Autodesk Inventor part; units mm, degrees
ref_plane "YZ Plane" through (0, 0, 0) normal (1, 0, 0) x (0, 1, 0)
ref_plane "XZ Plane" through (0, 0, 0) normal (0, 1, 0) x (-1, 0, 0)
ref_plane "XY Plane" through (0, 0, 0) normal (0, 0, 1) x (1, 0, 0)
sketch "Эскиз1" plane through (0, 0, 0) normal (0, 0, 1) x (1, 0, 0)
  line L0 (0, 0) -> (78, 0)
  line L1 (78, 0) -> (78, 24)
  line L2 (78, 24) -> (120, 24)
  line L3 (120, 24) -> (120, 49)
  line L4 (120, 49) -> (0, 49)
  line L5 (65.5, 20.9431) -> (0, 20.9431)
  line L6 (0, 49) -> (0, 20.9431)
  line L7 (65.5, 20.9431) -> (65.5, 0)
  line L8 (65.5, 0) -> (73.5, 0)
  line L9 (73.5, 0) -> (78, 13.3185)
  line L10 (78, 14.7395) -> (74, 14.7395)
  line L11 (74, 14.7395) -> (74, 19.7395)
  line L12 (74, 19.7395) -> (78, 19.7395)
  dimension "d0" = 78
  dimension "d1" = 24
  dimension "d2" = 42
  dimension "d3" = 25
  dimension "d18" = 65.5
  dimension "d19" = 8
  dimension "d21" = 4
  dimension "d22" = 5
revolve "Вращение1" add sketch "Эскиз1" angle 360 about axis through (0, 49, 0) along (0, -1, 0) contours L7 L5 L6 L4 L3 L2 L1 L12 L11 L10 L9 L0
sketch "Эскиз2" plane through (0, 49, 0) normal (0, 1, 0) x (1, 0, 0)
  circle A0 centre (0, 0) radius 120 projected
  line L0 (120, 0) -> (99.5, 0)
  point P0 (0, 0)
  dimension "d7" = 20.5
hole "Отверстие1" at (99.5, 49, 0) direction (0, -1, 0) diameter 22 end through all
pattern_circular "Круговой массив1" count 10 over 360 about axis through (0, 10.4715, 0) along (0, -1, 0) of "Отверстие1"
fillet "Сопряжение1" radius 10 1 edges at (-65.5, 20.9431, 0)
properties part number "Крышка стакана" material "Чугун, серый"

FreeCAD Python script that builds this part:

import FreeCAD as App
import Part
import Sketcher

V = App.Vector
Q = App.Units.Quantity


def edges_at(feature, points):
    """Names of the edges that pass closest to the given points."""
    edges = feature.Shape.Edges
    near = lambda p: min(range(len(edges)), key=lambda i: edges[i].distToShape(Part.Vertex(*p))[0])
    return sorted({f"Edge{near(p) + 1}" for p in points})


def add_polygon(sketch, points):
    """Adds a closed chain of lines whose ends are joined by coincident constraints."""
    first, n = sketch.GeometryCount, len(points)
    for a, b in zip(points, points[1:] + points[:1]):
        sketch.addGeometry(Part.LineSegment(App.Vector(*a, 0), App.Vector(*b, 0)), False)
    for i in range(n):
        sketch.addConstraint(Sketcher.Constraint("Coincident", first + i, 2, first + (i + 1) % n, 1))

doc = App.newDocument("Part")
params = doc.addObject("Spreadsheet::Sheet", "Params")
for row, (alias, value) in enumerate([
    ("sketch1_width", "8 mm"),
    ("sketch1_width2", "4 mm"),
    ("sketch1_width3", "42 mm"),
    ("sketch1_height", "5 mm"),
    ("sketch1_height2", "25 mm"),
    ("revolution_angle", "360 deg"),
    ("sketch2_diameter", "22 mm"),
    ("hole_diameter", "22 mm"),
    ("fillet_radius", "10 mm"),
], start=1):
    params.set(f"A{row}", alias)
    params.set(f"B{row}", "=" + value)
    params.setAlias(f"B{row}", alias)

body = doc.addObject("PartDesign::Body", "Body")

# Sketch on XY plane
sketch1 = body.newObject("Sketcher::SketchObject", "Sketch")
sketch1.AttachmentSupport = (doc.getObject("XY_Plane"), [""])
sketch1.MapMode = "FlatFace"
add_polygon(sketch1, [(65.5, 20.9), (65.5, 0), (73.5, 0), (78, 13.3), (78, 14.7), (74, 14.7), (74, 19.7), (78, 19.7), (78, 24), (120, 24), (120, 49), (0, 49), (0, 20.9)])  # lines 0-12
sketch1.addConstraint(Sketcher.Constraint("Vertical", 0))
sketch1.addConstraint(Sketcher.Constraint("Horizontal", 1))
sketch1.addConstraint(Sketcher.Constraint("Vertical", 3))
sketch1.addConstraint(Sketcher.Constraint("Horizontal", 4))
sketch1.addConstraint(Sketcher.Constraint("Vertical", 5))
sketch1.addConstraint(Sketcher.Constraint("Horizontal", 6))
sketch1.addConstraint(Sketcher.Constraint("Vertical", 7))
sketch1.addConstraint(Sketcher.Constraint("Horizontal", 8))
sketch1.addConstraint(Sketcher.Constraint("Vertical", 9))
sketch1.addConstraint(Sketcher.Constraint("Horizontal", 10))
sketch1.addConstraint(Sketcher.Constraint("Vertical", 11))
sketch1.addConstraint(Sketcher.Constraint("Horizontal", 12))
sketch1.addConstraint(Sketcher.Constraint("PointOnObject", 0, 2, -1))
sketch1.addConstraint(Sketcher.Constraint("PointOnObject", 10, 2, -2))
sketch1.addConstraint(Sketcher.Constraint("Vertical", 3, 2, 6, 2))
sketch1.addConstraint(Sketcher.Constraint("DistanceX", 1, 1, 1, 2, 8.0))
sketch1.addConstraint(Sketcher.Constraint("DistanceX", 4, 2, 4, 1, 4.0))
sketch1.addConstraint(Sketcher.Constraint("DistanceX", 8, 1, 8, 2, 42.0))
sketch1.addConstraint(Sketcher.Constraint("DistanceY", 5, 1, 5, 2, 5.0))
sketch1.addConstraint(Sketcher.Constraint("DistanceY", 9, 1, 9, 2, 25.0))
sketch1.addConstraint(Sketcher.Constraint("DistanceX", 12, 1, 12, 2, 65.5))
sketch1.addConstraint(Sketcher.Constraint("DistanceX", -1, 1, 2, 2, 78.0))
sketch1.addConstraint(Sketcher.Constraint("DistanceY", -1, 1, 7, 2, 24.0))
sketch1.addConstraint(Sketcher.Constraint("Angle", 2, Q("71.3311 deg")))
sketch1.addConstraint(Sketcher.Constraint("DistanceY", 0, 2, 0, 1, 20.943))
sketch1.addConstraint(Sketcher.Constraint("DistanceY", 3, 1, 3, 2, 1.421))
sketch1.setExpression("Constraints[28]", "Params.sketch1_width")
sketch1.setExpression("Constraints[29]", "Params.sketch1_width2")
sketch1.setExpression("Constraints[30]", "Params.sketch1_width3")
sketch1.setExpression("Constraints[31]", "Params.sketch1_height")
sketch1.setExpression("Constraints[32]", "Params.sketch1_height2")
revolution = body.newObject("PartDesign::Revolution", "Revolution")
revolution.Profile = sketch1
revolution.ReferenceAxis = (sketch1, ["V_Axis"])
revolution.setExpression("Angle", "Params.revolution_angle")

# Sketch on XZ plane
sketch2 = body.newObject("Sketcher::SketchObject", "Sketch001")
sketch2.AttachmentSupport = (doc.getObject("XZ_Plane"), [""])
sketch2.MapMode = "FlatFace"
sketch2.AttachmentOffset = App.Placement(V(0, 0, -49), App.Rotation())
sketch2.addGeometry(Part.Circle(V(100, 0, 0), V(0, 0, 1), 11), False)
sketch2.addConstraint(Sketcher.Constraint("PointOnObject", 0, 3, -1))
sketch2.addConstraint(Sketcher.Constraint("Diameter", 0, 22.0))
sketch2.addConstraint(Sketcher.Constraint("DistanceX", -1, 1, 0, 3, 99.5))
sketch2.setExpression("Constraints[1]", "Params.sketch2_diameter")
doc.recompute()
hole = body.newObject("PartDesign::Hole", "Hole")
hole.Profile = sketch2
hole.ThreadType = "None"
hole.setExpression("Diameter", "Params.hole_diameter")
hole.DepthType = "ThroughAll"
hole.Reversed = True
doc.recompute()

polarpattern = body.newObject("PartDesign::PolarPattern", "PolarPattern")
polarpattern.Originals = [hole]
polarpattern.Axis = (doc.getObject("Y_Axis"), [""])
polarpattern.Angle = 360
polarpattern.Occurrences = 10
body.Tip = polarpattern
doc.recompute()

fillet = body.newObject("PartDesign::Fillet", "Fillet")
fillet.Base = (polarpattern, edges_at(polarpattern, [(-65.5, 20.943, 0)]))
fillet.setExpression("Radius", "Params.fillet_radius")

doc.recompute()
